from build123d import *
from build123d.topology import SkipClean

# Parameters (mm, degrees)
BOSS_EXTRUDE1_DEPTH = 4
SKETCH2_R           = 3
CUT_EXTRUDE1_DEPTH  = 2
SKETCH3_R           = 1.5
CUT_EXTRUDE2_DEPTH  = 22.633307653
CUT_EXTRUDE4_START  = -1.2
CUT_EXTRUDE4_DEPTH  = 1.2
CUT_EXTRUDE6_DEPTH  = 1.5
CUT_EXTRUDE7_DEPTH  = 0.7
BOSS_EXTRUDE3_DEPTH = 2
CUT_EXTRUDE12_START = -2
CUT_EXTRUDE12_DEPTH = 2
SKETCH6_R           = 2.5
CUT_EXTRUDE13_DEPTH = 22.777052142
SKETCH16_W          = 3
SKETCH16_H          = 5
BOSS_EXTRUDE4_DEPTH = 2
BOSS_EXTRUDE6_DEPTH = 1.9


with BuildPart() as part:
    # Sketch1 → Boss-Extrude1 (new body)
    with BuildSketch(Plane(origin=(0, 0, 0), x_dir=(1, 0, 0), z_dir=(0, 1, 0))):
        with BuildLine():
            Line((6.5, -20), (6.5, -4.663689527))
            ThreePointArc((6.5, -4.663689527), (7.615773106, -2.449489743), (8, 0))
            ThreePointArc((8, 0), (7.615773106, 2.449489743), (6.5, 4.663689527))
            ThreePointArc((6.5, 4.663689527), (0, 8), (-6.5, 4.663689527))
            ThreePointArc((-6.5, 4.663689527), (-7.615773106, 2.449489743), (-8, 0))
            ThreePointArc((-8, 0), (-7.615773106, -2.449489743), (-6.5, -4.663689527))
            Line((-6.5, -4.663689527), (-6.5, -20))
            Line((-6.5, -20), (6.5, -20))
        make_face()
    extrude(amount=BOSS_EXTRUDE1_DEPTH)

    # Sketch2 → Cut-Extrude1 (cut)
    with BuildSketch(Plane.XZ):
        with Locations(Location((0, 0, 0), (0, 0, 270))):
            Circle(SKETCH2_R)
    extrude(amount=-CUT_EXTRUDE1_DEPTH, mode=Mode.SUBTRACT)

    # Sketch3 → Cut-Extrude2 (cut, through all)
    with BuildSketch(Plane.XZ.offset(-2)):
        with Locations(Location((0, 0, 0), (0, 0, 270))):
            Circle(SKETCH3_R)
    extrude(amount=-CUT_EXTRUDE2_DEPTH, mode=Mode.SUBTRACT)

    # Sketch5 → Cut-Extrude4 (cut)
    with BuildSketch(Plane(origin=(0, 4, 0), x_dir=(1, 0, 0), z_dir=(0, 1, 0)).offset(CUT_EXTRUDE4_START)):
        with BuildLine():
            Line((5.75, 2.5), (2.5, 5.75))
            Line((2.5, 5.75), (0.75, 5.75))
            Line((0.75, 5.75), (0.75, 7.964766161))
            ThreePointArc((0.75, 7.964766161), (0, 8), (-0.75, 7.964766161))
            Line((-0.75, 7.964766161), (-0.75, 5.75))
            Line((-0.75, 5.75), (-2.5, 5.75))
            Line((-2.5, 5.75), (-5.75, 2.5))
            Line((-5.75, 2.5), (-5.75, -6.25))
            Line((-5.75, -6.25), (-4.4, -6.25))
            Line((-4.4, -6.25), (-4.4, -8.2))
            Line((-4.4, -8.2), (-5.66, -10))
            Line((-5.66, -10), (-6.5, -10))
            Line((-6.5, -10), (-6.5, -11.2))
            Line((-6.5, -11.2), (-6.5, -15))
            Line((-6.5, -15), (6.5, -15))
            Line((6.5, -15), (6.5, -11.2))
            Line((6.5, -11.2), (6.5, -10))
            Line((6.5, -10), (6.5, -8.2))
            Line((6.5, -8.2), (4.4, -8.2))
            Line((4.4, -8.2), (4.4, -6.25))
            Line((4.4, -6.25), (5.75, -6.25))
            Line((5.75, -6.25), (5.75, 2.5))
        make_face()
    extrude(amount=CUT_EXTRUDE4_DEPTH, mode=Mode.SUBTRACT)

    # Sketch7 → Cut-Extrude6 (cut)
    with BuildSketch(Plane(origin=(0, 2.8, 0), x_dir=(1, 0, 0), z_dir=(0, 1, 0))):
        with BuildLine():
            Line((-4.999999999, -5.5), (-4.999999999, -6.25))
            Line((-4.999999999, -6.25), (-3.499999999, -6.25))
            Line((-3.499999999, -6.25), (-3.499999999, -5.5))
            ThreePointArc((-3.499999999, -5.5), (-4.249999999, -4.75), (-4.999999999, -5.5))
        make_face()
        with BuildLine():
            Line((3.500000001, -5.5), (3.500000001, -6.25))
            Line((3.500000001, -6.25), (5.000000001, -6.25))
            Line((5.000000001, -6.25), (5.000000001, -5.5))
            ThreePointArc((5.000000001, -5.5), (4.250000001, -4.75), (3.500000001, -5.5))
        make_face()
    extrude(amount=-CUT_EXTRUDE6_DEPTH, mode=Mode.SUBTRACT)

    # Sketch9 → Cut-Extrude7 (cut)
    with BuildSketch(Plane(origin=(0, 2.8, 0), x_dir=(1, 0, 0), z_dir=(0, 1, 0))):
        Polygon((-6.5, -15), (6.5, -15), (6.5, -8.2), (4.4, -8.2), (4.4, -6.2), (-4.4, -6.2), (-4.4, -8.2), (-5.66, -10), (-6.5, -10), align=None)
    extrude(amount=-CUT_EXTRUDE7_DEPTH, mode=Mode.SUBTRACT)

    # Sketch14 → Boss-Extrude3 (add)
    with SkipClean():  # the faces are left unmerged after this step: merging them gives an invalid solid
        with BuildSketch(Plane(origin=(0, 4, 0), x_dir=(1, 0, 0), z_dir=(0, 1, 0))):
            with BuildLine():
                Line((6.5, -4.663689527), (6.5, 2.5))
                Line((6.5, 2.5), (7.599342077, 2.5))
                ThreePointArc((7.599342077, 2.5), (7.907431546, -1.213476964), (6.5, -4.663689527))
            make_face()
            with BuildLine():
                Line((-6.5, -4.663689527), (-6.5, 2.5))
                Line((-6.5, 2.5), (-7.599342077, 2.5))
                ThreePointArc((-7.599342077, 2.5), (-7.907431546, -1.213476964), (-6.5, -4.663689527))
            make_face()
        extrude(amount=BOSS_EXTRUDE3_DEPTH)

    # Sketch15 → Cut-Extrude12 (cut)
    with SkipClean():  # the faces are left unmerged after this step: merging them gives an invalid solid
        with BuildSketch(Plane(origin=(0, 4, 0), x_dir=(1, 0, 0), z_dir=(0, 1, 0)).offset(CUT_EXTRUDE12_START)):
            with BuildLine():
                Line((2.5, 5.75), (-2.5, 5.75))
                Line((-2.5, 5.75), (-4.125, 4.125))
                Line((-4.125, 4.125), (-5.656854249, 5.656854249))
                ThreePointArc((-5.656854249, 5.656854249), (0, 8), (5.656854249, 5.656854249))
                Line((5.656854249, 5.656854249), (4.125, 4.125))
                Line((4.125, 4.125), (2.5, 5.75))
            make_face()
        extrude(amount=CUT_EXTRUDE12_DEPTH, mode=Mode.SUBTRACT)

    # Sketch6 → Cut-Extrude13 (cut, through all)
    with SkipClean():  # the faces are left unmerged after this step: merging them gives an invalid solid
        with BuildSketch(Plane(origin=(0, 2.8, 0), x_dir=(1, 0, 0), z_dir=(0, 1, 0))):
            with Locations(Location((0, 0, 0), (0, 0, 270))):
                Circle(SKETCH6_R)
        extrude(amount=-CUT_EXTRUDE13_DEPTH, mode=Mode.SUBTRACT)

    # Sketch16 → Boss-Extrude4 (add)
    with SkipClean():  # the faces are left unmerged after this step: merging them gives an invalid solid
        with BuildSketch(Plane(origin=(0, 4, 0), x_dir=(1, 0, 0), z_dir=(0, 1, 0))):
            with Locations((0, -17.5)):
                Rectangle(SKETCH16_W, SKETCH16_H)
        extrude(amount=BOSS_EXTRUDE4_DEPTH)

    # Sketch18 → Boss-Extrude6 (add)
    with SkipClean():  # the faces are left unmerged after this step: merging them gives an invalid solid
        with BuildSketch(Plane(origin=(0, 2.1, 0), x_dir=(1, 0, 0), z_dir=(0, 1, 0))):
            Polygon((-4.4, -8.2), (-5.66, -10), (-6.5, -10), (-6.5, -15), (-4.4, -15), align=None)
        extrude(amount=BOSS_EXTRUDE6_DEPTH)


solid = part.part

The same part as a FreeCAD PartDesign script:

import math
import FreeCAD as App
import Part
import Sketcher

V = App.Vector


def add_polygon(sketch, points):
    """Adds a closed chain of lines whose ends are joined by coincident constraints."""
    first, n = sketch.GeometryCount, len(points)
    for a, b in zip(points, points[1:] + points[:1]):
        sketch.addGeometry(Part.LineSegment(App.Vector(*a, 0), App.Vector(*b, 0)), False)
    for i in range(n):
        sketch.addConstraint(Sketcher.Constraint("Coincident", first + i, 2, first + (i + 1) % n, 1))

doc = App.newDocument("Part")
body = doc.addObject("PartDesign::Body", "Body")

sketch1 = body.newObject("Sketcher::SketchObject", "Sketch")
sketch1.AttachmentSupport = (doc.getObject("XZ_Plane"), [""])
sketch1.MapMode = "FlatFace"
sketch1.addGeometry([
    Part.LineSegment(V(6.5, 20, 0), V(6.5, 4.7, 0)),
    Part.ArcOfCircle(Part.Circle(V(0, 0, 0), V(0, 0, 1), 8), math.radians(0), math.radians(36)),
    Part.ArcOfCircle(Part.Circle(V(0, 0, 0), V(0, 0, 1), 8), math.radians(-36), math.radians(0)),
    Part.ArcOfCircle(Part.Circle(V(0, 0, 0), V(0, 0, 1), 8), math.radians(-144), math.radians(-36)),
    Part.ArcOfCircle(Part.Circle(V(0, 0, 0), V(0, 0, 1), 8), math.radians(180), math.radians(216)),
    Part.ArcOfCircle(Part.Circle(V(0, 0, 0), V(0, 0, 1), 8), math.radians(144), math.radians(180)),
    Part.LineSegment(V(-6.5, 4.7, 0), V(-6.5, 20, 0)),
    Part.LineSegment(V(-6.5, 20, 0), V(6.5, 20, 0)),
], False)
sketch1.addConstraint([
    Sketcher.Constraint("Coincident", 0, 2, 1, 2),
    Sketcher.Constraint("Tangent", 1, 1, 2, 2),
    Sketcher.Constraint("Tangent", 2, 1, 3, 2),
    Sketcher.Constraint("Tangent", 3, 1, 4, 2),
    Sketcher.Constraint("Tangent", 4, 1, 5, 2),
    Sketcher.Constraint("Coincident", 5, 1, 6, 1),
    Sketcher.Constraint("Coincident", 6, 2, 7, 1),
    Sketcher.Constraint("Coincident", 7, 2, 0, 1),
    Sketcher.Constraint("Vertical", 0),
    Sketcher.Constraint("Vertical", 6),
    Sketcher.Constraint("Horizontal", 7),
    Sketcher.Constraint("Coincident", 1, 3, -1, 1),
    Sketcher.Constraint("Coincident", 3, 3, -1, 1),
    Sketcher.Constraint("Coincident", 5, 3, -1, 1),
    Sketcher.Constraint("PointOnObject", 1, 1, -1),
    Sketcher.Constraint("PointOnObject", 4, 1, -1),
    Sketcher.Constraint("Horizontal", 2, 1, 3, 1),
    Sketcher.Constraint("Horizontal", 0, 2, 5, 1),
    Sketcher.Constraint("Vertical", 0, 2, 2, 1),
    Sketcher.Constraint("Radius", 1, 8.0),
    Sketcher.Constraint("DistanceX", 7, 1, 7, 2, 13.0),
    Sketcher.Constraint("DistanceY", -1, 1, 6, 2, 20.0),
])
pad1 = body.newObject("PartDesign::Pad", "Pad")
pad1.Profile = sketch1
pad1.Length = 4
pad1.Reversed = True

sketch2 = body.newObject("Sketcher::SketchObject", "Sketch001")
sketch2.AttachmentSupport = (doc.getObject("XZ_Plane"), [""])
sketch2.MapMode = "FlatFace"
sketch2.addGeometry(Part.Circle(V(0, 0, 0), V(0, 0, 1), 3), False)
sketch2.addConstraint([
    Sketcher.Constraint("Coincident", 0, 3, -1, 1),
    Sketcher.Constraint("Diameter", 0, 6.0),
])
pocket1 = body.newObject("PartDesign::Pocket", "Pocket")
pocket1.Profile = sketch2
pocket1.Length = 2

sketch3 = body.newObject("Sketcher::SketchObject", "Sketch002")
sketch3.AttachmentSupport = (doc.getObject("XZ_Plane"), [""])
sketch3.MapMode = "FlatFace"
sketch3.AttachmentOffset = App.Placement(V(0, 0, -2), App.Rotation())
sketch3.addGeometry(Part.Circle(V(0, 0, 0), V(0, 0, 1), 1.5), False)
sketch3.addConstraint([
    Sketcher.Constraint("Coincident", 0, 3, -1, 1),
    Sketcher.Constraint("Diameter", 0, 3.0),
])
pocket2 = body.newObject("PartDesign::Pocket", "Pocket001")
pocket2.Profile = sketch3
pocket2.Type = "ThroughAll"

sketch4 = body.newObject("Sketcher::SketchObject", "Sketch003")
sketch4.AttachmentSupport = (doc.getObject("XZ_Plane"), [""])
sketch4.MapMode = "FlatFace"
sketch4.AttachmentOffset = App.Placement(V(0, 0, -2.8), App.Rotation())
sketch4.addGeometry([
    Part.LineSegment(V(5.8, -2.5, 0), V(2.5, -5.8, 0)),
    Part.LineSegment(V(2.5, -5.8, 0), V(0.8, -5.8, 0)),
    Part.LineSegment(V(0.8, -5.8, 0), V(0.8, -8, 0)),
    Part.ArcOfCircle(Part.Circle(V(0, 0, 0), V(0, 0, 1), 8), math.radians(-95.38), math.radians(-84.62)),
    Part.LineSegment(V(-0.8, -8, 0), V(-0.8, -5.8, 0)),
    Part.LineSegment(V(-0.8, -5.8, 0), V(-2.5, -5.8, 0)),
    Part.LineSegment(V(-2.5, -5.8, 0), V(-5.8, -2.5, 0)),
    Part.LineSegment(V(-5.8, -2.5, 0), V(-5.8, 6.2, 0)),
    Part.LineSegment(V(-5.8, 6.2, 0), V(-4.4, 6.2, 0)),
    Part.LineSegment(V(-4.4, 6.2, 0), V(-4.4, 8.2, 0)),
    Part.LineSegment(V(-4.4, 8.2, 0), V(-5.7, 10, 0)),
    Part.LineSegment(V(-5.7, 10, 0), V(-6.5, 10, 0)),
    Part.LineSegment(V(-6.5, 10, 0), V(-6.5, 15, 0)),
    Part.LineSegment(V(-6.5, 15, 0), V(6.5, 15, 0)),
    Part.LineSegment(V(6.5, 15, 0), V(6.5, 8.2, 0)),
    Part.LineSegment(V(6.5, 8.2, 0), V(4.4, 8.2, 0)),
    Part.LineSegment(V(4.4, 8.2, 0), V(4.4, 6.2, 0)),
    Part.LineSegment(V(4.4, 6.2, 0), V(5.8, 6.2, 0)),
    Part.LineSegment(V(5.8, 6.2, 0), V(5.8, -2.5, 0)),
], False)
sketch4.addConstraint([
    Sketcher.Constraint("Coincident", 0, 2, 1, 1),
    Sketcher.Constraint("Coincident", 1, 2, 2, 1),
    Sketcher.Constraint("Coincident", 2, 2, 3, 2),
    Sketcher.Constraint("Coincident", 3, 1, 4, 1),
    Sketcher.Constraint("Coincident", 4, 2, 5, 1),
    Sketcher.Constraint("Coincident", 5, 2, 6, 1),
    Sketcher.Constraint("Coincident", 6, 2, 7, 1),
    Sketcher.Constraint("Coincident", 7, 2, 8, 1),
    Sketcher.Constraint("Coincident", 8, 2, 9, 1),
    Sketcher.Constraint("Coincident", 9, 2, 10, 1),
    Sketcher.Constraint("Coincident", 10, 2, 11, 1),
    Sketcher.Constraint("Coincident", 11, 2, 12, 1),
    Sketcher.Constraint("Coincident", 12, 2, 13, 1),
    Sketcher.Constraint("Coincident", 13, 2, 14, 1),
    Sketcher.Constraint("Coincident", 14, 2, 15, 1),
    Sketcher.Constraint("Coincident", 15, 2, 16, 1),
    Sketcher.Constraint("Coincident", 16, 2, 17, 1),
    Sketcher.Constraint("Coincident", 17, 2, 18, 1),
    Sketcher.Constraint("Coincident", 18, 2, 0, 1),
    Sketcher.Constraint("Horizontal", 1),
    Sketcher.Constraint("Vertical", 2),
    Sketcher.Constraint("Vertical", 4),
    Sketcher.Constraint("Horizontal", 5),
    Sketcher.Constraint("Vertical", 7),
    Sketcher.Constraint("Horizontal", 8),
    Sketcher.Constraint("Vertical", 9),
    Sketcher.Constraint("Horizontal", 11),
    Sketcher.Constraint("Vertical", 12),
    Sketcher.Constraint("Horizontal", 13),
    Sketcher.Constraint("Vertical", 14),
    Sketcher.Constraint("Horizontal", 15),
    Sketcher.Constraint("Vertical", 16),
    Sketcher.Constraint("Horizontal", 17),
    Sketcher.Constraint("Vertical", 18),
    Sketcher.Constraint("Coincident", 3, 3, -1, 1),
    Sketcher.Constraint("Symmetric", 1, 2, 4, 2, -2),
    Sketcher.Constraint("Symmetric", 9, 2, 15, 2, -2),
    Sketcher.Constraint("Symmetric", 7, 2, 17, 2, -2),
    Sketcher.Constraint("Perpendicular", 0, 6),
    Sketcher.Constraint("Horizontal", 6, 2, 18, 2),
    Sketcher.Constraint("Equal", 1, 5),
    Sketcher.Constraint("Radius", 3, 8.0),
    Sketcher.Constraint("DistanceX", 13, 1, 13, 2, 13.0),
    Sketcher.Constraint("DistanceY", 12, 1, 12, 2, 5.0),
    Sketcher.Constraint("DistanceX", 15, 2, 15, 1, 2.1),
    Sketcher.Constraint("DistanceY", 14, 2, 14, 1, 6.8),
    Sketcher.Constraint("DistanceY", -1, 1, 10, 2, 10.0),
    Sketcher.Constraint("DistanceX", 5, 2, 0, 2, 5.0),
    Sketcher.Constraint("DistanceX", 6, 2, 4, 2, 5.0),
    Sketcher.Constraint("DistanceY", 5, 2, 7, 2, 12.0),
    Sketcher.Constraint("DistanceX", 1, 2, 1, 1, 1.75),
    Sketcher.Constraint("DistanceX", 8, 1, 8, 2, 1.35),
    Sketcher.Constraint("DistanceX", 11, 2, 11, 1, 0.84),
    Sketcher.Constraint("DistanceY", 9, 1, 9, 2, 1.95),
])
pocket3 = body.newObject("PartDesign::Pocket", "Pocket002")
pocket3.Profile = sketch4
pocket3.Length = 1.2

sketch5 = body.newObject("Sketcher::SketchObject", "Sketch004")
sketch5.AttachmentSupport = (doc.getObject("XZ_Plane"), [""])
sketch5.MapMode = "FlatFace"
sketch5.AttachmentOffset = App.Placement(V(0, 0, -2.8), App.Rotation())
sketch5.addGeometry([
    Part.LineSegment(V(-5, 5.5, 0), V(-5, 6.2, 0)),
    Part.LineSegment(V(-5, 6.2, 0), V(-3.5, 6.2, 0)),
    Part.LineSegment(V(-3.5, 6.2, 0), V(-3.5, 5.5, 0)),
    Part.ArcOfCircle(Part.Circle(V(-4.2, 5.5, 0), V(0, 0, 1), 0.8), math.radians(180), math.radians(360)),
    Part.LineSegment(V(3.5, 5.5, 0), V(3.5, 6.2, 0)),
    Part.LineSegment(V(3.5, 6.2, 0), V(5, 6.2, 0)),
    Part.LineSegment(V(5, 6.2, 0), V(5, 5.5, 0)),
    Part.ArcOfCircle(Part.Circle(V(4.3, 5.5, 0), V(0, 0, 1), 0.8), math.radians(180), math.radians(360)),
], False)
sketch5.addConstraint([
    Sketcher.Constraint("Coincident", 0, 2, 1, 1),
    Sketcher.Constraint("Coincident", 1, 2, 2, 1),
    Sketcher.Constraint("Tangent", 2, 2, 3, 2),
    Sketcher.Constraint("Tangent", 3, 1, 0, 1),
    Sketcher.Constraint("Coincident", 4, 2, 5, 1),
    Sketcher.Constraint("Coincident", 5, 2, 6, 1),
    Sketcher.Constraint("Tangent", 6, 2, 7, 2),
    Sketcher.Constraint("Tangent", 7, 1, 4, 1),
    Sketcher.Constraint("Vertical", 0),
    Sketcher.Constraint("Horizontal", 1),
    Sketcher.Constraint("Vertical", 2),
    Sketcher.Constraint("Vertical", 4),
    Sketcher.Constraint("Horizontal", 5),
    Sketcher.Constraint("Vertical", 6),
    Sketcher.Constraint("Equal", 3, 7),
    Sketcher.Constraint("Symmetric", 3, 3, 7, 3, -2),
    Sketcher.Constraint("Horizontal", 1, 2, 4, 2),
    Sketcher.Constraint("Radius", 3, 0.75),
    Sketcher.Constraint("DistanceX", 0, 2, -1, 1, 5.0),
    Sketcher.Constraint("DistanceY", 0, 1, 0, 2, 0.75),
    Sketcher.Constraint("DistanceY", -1, 1, 3, 3, 5.5),
])
pocket4 = body.newObject("PartDesign::Pocket", "Pocket003")
pocket4.Profile = sketch5
pocket4.Length = 1.5
pocket4.Reversed = True

sketch6 = body.newObject("Sketcher::SketchObject", "Sketch005")
sketch6.AttachmentSupport = (doc.getObject("XZ_Plane"), [""])
sketch6.MapMode = "FlatFace"
sketch6.AttachmentOffset = App.Placement(V(0, 0, -2.8), App.Rotation())
add_polygon(sketch6, [(-6.5, 15), (6.5, 15), (6.5, 8.2), (4.4, 8.2), (4.4, 6.2), (-4.4, 6.2), (-4.4, 8.2), (-5.7, 10), (-6.5, 10)])
sketch6.addConstraint([
    Sketcher.Constraint("Horizontal", 0),
    Sketcher.Constraint("Vertical", 1),
    Sketcher.Constraint("Horizontal", 2),
    Sketcher.Constraint("Vertical", 3),
    Sketcher.Constraint("Horizontal", 4),
    Sketcher.Constraint("Vertical", 5),
    Sketcher.Constraint("Horizontal", 7),
    Sketcher.Constraint("Vertical", 8),
    Sketcher.Constraint("Symmetric", 2, 2, 5, 2, -2),
    Sketcher.Constraint("DistanceX", 0, 1, 0, 2, 13.0),
    Sketcher.Constraint("DistanceY", 3, 2, 3, 1, 2.0),
    Sketcher.Constraint("DistanceY", 8, 1, 8, 2, 5.0),
    Sketcher.Constraint("DistanceX", 2, 2, 2, 1, 2.1),
    Sketcher.Constraint("DistanceX", 4, 2, 4, 1, 8.8),
    Sketcher.Constraint("DistanceY", 1, 2, 1, 1, 6.8),
    Sketcher.Constraint("DistanceY", -1, 1, 0, 2, 15.0),
    Sketcher.Constraint("DistanceX", 7, 2, 7, 1, 0.84),
])
pocket5 = body.newObject("PartDesign::Pocket", "Pocket004")
pocket5.Profile = sketch6
pocket5.Length = 0.7
pocket5.Reversed = True

sketch7 = body.newObject("Sketcher::SketchObject", "Sketch006")
sketch7.AttachmentSupport = (doc.getObject("XZ_Plane"), [""])
sketch7.MapMode = "FlatFace"
sketch7.AttachmentOffset = App.Placement(V(0, 0, -4), App.Rotation())
sketch7.addGeometry([
    Part.LineSegment(V(6.5, -2.5, 0), V(6.5, 4.7, 0)),
    Part.ArcOfCircle(Part.Circle(V(0, 0, 0), V(0, 0, 1), 8), math.radians(-18), math.radians(36)),
    Part.LineSegment(V(7.6, -2.5, 0), V(6.5, -2.5, 0)),
    Part.LineSegment(V(-6.5, 4.7, 0), V(-6.5, -2.5, 0)),
    Part.LineSegment(V(-6.5, -2.5, 0), V(-7.6, -2.5, 0)),
    Part.ArcOfCircle(Part.Circle(V(0, 0, 0), V(0, 0, 1), 8), math.radians(144), math.radians(198)),
], False)
sketch7.addConstraint([
    Sketcher.Constraint("Coincident", 0, 2, 1, 2),
    Sketcher.Constraint("Coincident", 1, 1, 2, 1),
    Sketcher.Constraint("Coincident", 2, 2, 0, 1),
    Sketcher.Constraint("Coincident", 3, 2, 4, 1),
    Sketcher.Constraint("Coincident", 4, 2, 5, 2),
    Sketcher.Constraint("Coincident", 5, 1, 3, 1),
    Sketcher.Constraint("Vertical", 0),
    Sketcher.Constraint("Horizontal", 2),
    Sketcher.Constraint("Vertical", 3),
    Sketcher.Constraint("Horizontal", 4),
    Sketcher.Constraint("Coincident", 1, 3, -1, 1),
    Sketcher.Constraint("Coincident", 5, 3, -1, 1),
    Sketcher.Constraint("Equal", 1, 5),
    Sketcher.Constraint("Symmetric", 2, 2, 3, 2, -2),
    Sketcher.Constraint("Radius", 1, 8.0),
    Sketcher.Constraint("DistanceX", 3, 2, 2, 2, 13.0),
    Sketcher.Constraint("DistanceY", 1, 1, -1, 1, 2.5),
])
pad2 = body.newObject("PartDesign::Pad", "Pad001")
pad2.Profile = sketch7
pad2.Length = 2
pad2.Reversed = True

sketch8 = body.newObject("Sketcher::SketchObject", "Sketch007")
sketch8.AttachmentSupport = (doc.getObject("XZ_Plane"), [""])
sketch8.MapMode = "FlatFace"
sketch8.AttachmentOffset = App.Placement(V(0, 0, -2), App.Rotation())
sketch8.addGeometry([
    Part.LineSegment(V(-2.5, -5.8, 0), V(2.5, -5.8, 0)),
    Part.LineSegment(V(2.5, -5.8, 0), V(4.1, -4.1, 0)),
    Part.LineSegment(V(4.1, -4.1, 0), V(5.7, -5.7, 0)),
    Part.ArcOfCircle(Part.Circle(V(0, 0, 0), V(0, 0, 1), 8), math.radians(-135), math.radians(-45)),
    Part.LineSegment(V(-5.7, -5.7, 0), V(-4.1, -4.1, 0)),
    Part.LineSegment(V(-4.1, -4.1, 0), V(-2.5, -5.8, 0)),
], False)
sketch8.addConstraint([
    Sketcher.Constraint("Coincident", 0, 2, 1, 1),
    Sketcher.Constraint("Coincident", 1, 2, 2, 1),
    Sketcher.Constraint("Coincident", 2, 2, 3, 2),
    Sketcher.Constraint("Coincident", 3, 1, 4, 1),
    Sketcher.Constraint("Coincident", 4, 2, 5, 1),
    Sketcher.Constraint("Coincident", 5, 2, 0, 1),
    Sketcher.Constraint("Horizontal", 0),
    Sketcher.Constraint("Coincident", 3, 3, -1, 1),
    Sketcher.Constraint("Symmetric", 1, 2, 4, 2, -2),
    Sketcher.Constraint("Perpendicular", 1, 2),
    Sketcher.Constraint("Perpendicular", 2, 4),
    Sketcher.Constraint("Perpendicular", 4, 5),
    Sketcher.Constraint("Horizontal", 2, 2, 3, 1),
    Sketcher.Constraint("Radius", 3, 8.0),
    Sketcher.Constraint("DistanceX", 0, 1, 0, 2, 5.0),
    Sketcher.Constraint("DistanceY", 0, 2, -1, 1, 5.75),
    Sketcher.Constraint("DistanceX", 4, 2, 1, 2, 8.25),
])
pocket6 = body.newObject("PartDesign::Pocket", "Pocket005")
pocket6.Profile = sketch8
pocket6.Length = 2

sketch9 = body.newObject("Sketcher::SketchObject", "Sketch008")
sketch9.AttachmentSupport = (doc.getObject("XZ_Plane"), [""])
sketch9.MapMode = "FlatFace"
sketch9.AttachmentOffset = App.Placement(V(0, 0, -2.8), App.Rotation())
sketch9.addGeometry(Part.Circle(V(0, 0, 0), V(0, 0, 1), 2.5), False)
sketch9.addConstraint([
    Sketcher.Constraint("Coincident", 0, 3, -1, 1),
    Sketcher.Constraint("Diameter", 0, 5.0),
])
pocket7 = body.newObject("PartDesign::Pocket", "Pocket006")
pocket7.Profile = sketch9
pocket7.Type = "ThroughAll"
pocket7.Reversed = True

sketch10 = body.newObject("Sketcher::SketchObject", "Sketch009")
sketch10.AttachmentSupport = (doc.getObject("XZ_Plane"), [""])
sketch10.MapMode = "FlatFace"
sketch10.AttachmentOffset = App.Placement(V(0, 0, -4), App.Rotation())
add_polygon(sketch10, [(-1.5, 15), (-1.5, 20), (1.5, 20), (1.5, 15)])
sketch10.addConstraint([
    Sketcher.Constraint("Vertical", 0),
    Sketcher.Constraint("Horizontal", 1),
    Sketcher.Constraint("Vertical", 2),
    Sketcher.Constraint("Horizontal", 3),
    Sketcher.Constraint("DistanceX", 1, 1, 1, 2, 3.0),
    Sketcher.Constraint("DistanceY", 0, 1, 0, 2, 5.0),
    Sketcher.Constraint("DistanceY", -1, 1, 0, 2, 20.0),
    Sketcher.Constraint("DistanceX", 0, 2, -1, 1, 1.5),
])
pad3 = body.newObject("PartDesign::Pad", "Pad002")
pad3.Profile = sketch10
pad3.Length = 2
pad3.Reversed = True

sketch11 = body.newObject("Sketcher::SketchObject", "Sketch010")
sketch11.AttachmentSupport = (doc.getObject("XZ_Plane"), [""])
sketch11.MapMode = "FlatFace"
sketch11.AttachmentOffset = App.Placement(V(0, 0, -2.1), App.Rotation())
add_polygon(sketch11, [(-4.4, 8.2), (-5.7, 10), (-6.5, 10), (-6.5, 15), (-4.4, 15)])
sketch11.addConstraint([
    Sketcher.Constraint("Horizontal", 1),
    Sketcher.Constraint("Vertical", 2),
    Sketcher.Constraint("Horizontal", 3),
    Sketcher.Constraint("Vertical", 4),
    Sketcher.Constraint("DistanceY", 2, 1, 2, 2, 5.0),
    Sketcher.Constraint("DistanceX", 3, 1, 3, 2, 2.1),
    Sketcher.Constraint("DistanceY", 4, 2, 4, 1, 6.8),
    Sketcher.Constraint("DistanceY", -1, 1, 0, 2, 10.0),
    Sketcher.Constraint("DistanceX", 1, 2, 1, 1, 0.84),
    Sketcher.Constraint("DistanceX", 1, 2, -1, 1, 6.5),
])
pad4 = body.newObject("PartDesign::Pad", "Pad003")
pad4.Profile = sketch11
pad4.Length = 1.9
pad4.Reversed = True

doc.recompute()
